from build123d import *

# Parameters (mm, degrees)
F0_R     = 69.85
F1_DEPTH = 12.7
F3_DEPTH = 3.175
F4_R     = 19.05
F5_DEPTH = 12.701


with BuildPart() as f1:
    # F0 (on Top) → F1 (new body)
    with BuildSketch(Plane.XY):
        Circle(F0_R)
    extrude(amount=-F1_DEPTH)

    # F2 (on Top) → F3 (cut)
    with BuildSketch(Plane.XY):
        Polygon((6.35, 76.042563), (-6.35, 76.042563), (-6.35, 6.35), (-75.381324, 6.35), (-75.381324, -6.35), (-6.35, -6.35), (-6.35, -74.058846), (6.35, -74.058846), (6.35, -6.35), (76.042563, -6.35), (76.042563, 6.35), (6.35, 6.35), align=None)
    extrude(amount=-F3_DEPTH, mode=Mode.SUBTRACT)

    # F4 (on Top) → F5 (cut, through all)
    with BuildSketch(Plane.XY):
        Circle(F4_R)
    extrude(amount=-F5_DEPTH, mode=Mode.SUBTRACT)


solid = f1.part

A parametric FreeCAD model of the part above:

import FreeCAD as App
import Part
import Sketcher
Q = App.Units.Quantity


def add_polygon(sketch, points):
    """Adds a closed chain of lines whose ends are joined by coincident constraints."""
    first, n = sketch.GeometryCount, len(points)
    for a, b in zip(points, points[1:] + points[:1]):
        sketch.addGeometry(Part.LineSegment(App.Vector(*a, 0), App.Vector(*b, 0)), False)
    for i in range(n):
        sketch.addConstraint(Sketcher.Constraint("Coincident", first + i, 2, first + (i + 1) % n, 1))

doc = App.newDocument("Part")
body = doc.addObject("PartDesign::Body", "Body")

sketch1 = doc.addObject("Sketcher::SketchObject", "Sketch")
body.addObject(sketch1)
sketch1.AttachmentSupport = (doc.XY_Plane, [""])
sketch1.MapMode = "FlatFace"
sketch1.addGeometry(Part.Circle(App.Vector(0, 0, 0), App.Vector(0, 0, 1), 69.85), False)
sketch1.addConstraint([
    Sketcher.Constraint("Coincident", 0, 3, -1, 1),
    Sketcher.Constraint("Diameter", 0, Q("5.5 in")),
])
pad1 = doc.addObject("PartDesign::Pad", "Pad")
body.addObject(pad1)
pad1.Profile = sketch1
pad1.Length = Q("0.5 in")
pad1.Reversed = True

sketch2 = doc.addObject("Sketcher::SketchObject", "Sketch001")
body.addObject(sketch2)
sketch2.AttachmentSupport = (doc.XY_Plane, [""])
sketch2.MapMode = "FlatFace"
add_polygon(sketch2, [(6.35, 76.042563), (-6.35, 76.042563), (-6.35, 6.35), (-75.381324, 6.35), (-75.381324, -6.35), (-6.35, -6.35), (-6.35, -74.058846), (6.35, -74.058846), (6.35, -6.35), (76.042563, -6.35), (76.042563, 6.35), (6.35, 6.35)])
sketch2.addConstraint([
    Sketcher.Constraint("Horizontal", 0),
    Sketcher.Constraint("Vertical", 1),
    Sketcher.Constraint("Horizontal", 2),
    Sketcher.Constraint("Vertical", 3),
    Sketcher.Constraint("Horizontal", 4),
    Sketcher.Constraint("Vertical", 5),
    Sketcher.Constraint("Horizontal", 6),
    Sketcher.Constraint("Vertical", 7),
    Sketcher.Constraint("Horizontal", 8),
    Sketcher.Constraint("Vertical", 9),
    Sketcher.Constraint("Horizontal", 10),
    Sketcher.Constraint("Vertical", 11),
    Sketcher.Constraint("Symmetric", 1, 2, 7, 2, -1, 1),
    Sketcher.Constraint("Symmetric", 4, 2, 10, 2, -1, 1),
    Sketcher.Constraint("Symmetric", 4, 2, 7, 2, -2),
    Sketcher.Constraint("Equal", 10, 1),
    Sketcher.Constraint("Equal", 6, 3),
    Sketcher.Constraint("DistanceX", 0, 2, 0, 1, Q("0.5 in")),
    Sketcher.Constraint("DistanceX", 2, 2, 2, 1, 69.031324),
    Sketcher.Constraint("DistanceX", 8, 1, 8, 2, 69.692563),
    Sketcher.Constraint("DistanceY", 5, 2, 5, 1, 67.708846),
])
pocket1 = doc.addObject("PartDesign::Pocket", "Pocket")
body.addObject(pocket1)
pocket1.Profile = sketch2
pocket1.Length = Q("0.125 in")

sketch3 = doc.addObject("Sketcher::SketchObject", "Sketch002")
body.addObject(sketch3)
sketch3.AttachmentSupport = (doc.XY_Plane, [""])
sketch3.MapMode = "FlatFace"
sketch3.addGeometry(Part.Circle(App.Vector(0, 0, 0), App.Vector(0, 0, 1), 19.05), False)
sketch3.addConstraint([
    Sketcher.Constraint("Coincident", 0, 3, -1, 1),
    Sketcher.Constraint("Diameter", 0, Q("1.5 in")),
])
pocket2 = doc.addObject("PartDesign::Pocket", "Pocket001")
body.addObject(pocket2)
pocket2.Profile = sketch3
pocket2.Type = "ThroughAll"

doc.recompute()
